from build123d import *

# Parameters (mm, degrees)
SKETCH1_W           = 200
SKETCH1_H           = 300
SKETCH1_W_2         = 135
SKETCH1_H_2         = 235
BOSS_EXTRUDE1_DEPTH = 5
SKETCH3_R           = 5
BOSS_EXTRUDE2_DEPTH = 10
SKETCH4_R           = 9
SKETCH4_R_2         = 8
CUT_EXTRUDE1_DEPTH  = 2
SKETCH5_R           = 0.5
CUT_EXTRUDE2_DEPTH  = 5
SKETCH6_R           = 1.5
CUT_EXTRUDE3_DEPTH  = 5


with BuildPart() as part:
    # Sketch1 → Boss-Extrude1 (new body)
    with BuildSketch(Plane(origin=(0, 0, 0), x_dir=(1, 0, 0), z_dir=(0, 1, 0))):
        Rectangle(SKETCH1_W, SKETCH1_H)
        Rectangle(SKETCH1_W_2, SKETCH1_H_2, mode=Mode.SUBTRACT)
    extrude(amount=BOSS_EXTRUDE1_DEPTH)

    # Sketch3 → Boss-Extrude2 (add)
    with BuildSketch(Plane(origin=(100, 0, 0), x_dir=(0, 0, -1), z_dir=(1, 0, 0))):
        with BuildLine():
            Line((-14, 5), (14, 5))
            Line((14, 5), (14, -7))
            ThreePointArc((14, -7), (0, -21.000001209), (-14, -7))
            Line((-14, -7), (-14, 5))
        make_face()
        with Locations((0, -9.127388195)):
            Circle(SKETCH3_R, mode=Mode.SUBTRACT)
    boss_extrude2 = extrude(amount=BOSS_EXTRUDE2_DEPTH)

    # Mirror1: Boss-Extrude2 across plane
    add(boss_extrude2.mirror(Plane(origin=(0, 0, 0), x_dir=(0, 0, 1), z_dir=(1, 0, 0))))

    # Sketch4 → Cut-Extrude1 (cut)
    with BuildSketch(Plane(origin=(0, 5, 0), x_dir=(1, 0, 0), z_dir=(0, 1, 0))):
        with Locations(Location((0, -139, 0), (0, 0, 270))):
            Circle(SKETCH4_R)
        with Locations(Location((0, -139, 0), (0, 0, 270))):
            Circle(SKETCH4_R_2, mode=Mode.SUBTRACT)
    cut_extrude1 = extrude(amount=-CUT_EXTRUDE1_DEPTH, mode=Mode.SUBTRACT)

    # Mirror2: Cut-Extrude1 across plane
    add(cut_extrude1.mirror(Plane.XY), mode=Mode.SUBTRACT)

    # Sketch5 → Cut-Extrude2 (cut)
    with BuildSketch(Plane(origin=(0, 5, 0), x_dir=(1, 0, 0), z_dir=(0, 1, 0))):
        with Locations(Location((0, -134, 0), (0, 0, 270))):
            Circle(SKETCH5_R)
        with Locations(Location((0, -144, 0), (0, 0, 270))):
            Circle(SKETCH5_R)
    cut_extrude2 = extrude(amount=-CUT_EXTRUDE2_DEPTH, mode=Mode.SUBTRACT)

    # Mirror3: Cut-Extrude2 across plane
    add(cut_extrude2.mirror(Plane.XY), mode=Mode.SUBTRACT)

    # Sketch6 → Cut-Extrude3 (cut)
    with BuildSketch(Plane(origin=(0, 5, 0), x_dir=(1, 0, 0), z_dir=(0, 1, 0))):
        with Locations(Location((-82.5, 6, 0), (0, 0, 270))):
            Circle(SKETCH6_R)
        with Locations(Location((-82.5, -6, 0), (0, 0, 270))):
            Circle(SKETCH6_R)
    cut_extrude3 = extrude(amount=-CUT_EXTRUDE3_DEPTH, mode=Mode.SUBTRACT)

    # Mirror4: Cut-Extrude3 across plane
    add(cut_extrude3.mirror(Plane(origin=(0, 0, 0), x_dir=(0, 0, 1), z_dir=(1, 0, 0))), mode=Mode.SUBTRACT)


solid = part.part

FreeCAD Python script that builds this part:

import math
import FreeCAD as App
import Part
import Sketcher

V = App.Vector


def add_polygon(sketch, points):
    """Adds a closed chain of lines whose ends are joined by coincident constraints."""
    first, n = sketch.GeometryCount, len(points)
    for a, b in zip(points, points[1:] + points[:1]):
        sketch.addGeometry(Part.LineSegment(App.Vector(*a, 0), App.Vector(*b, 0)), False)
    for i in range(n):
        sketch.addConstraint(Sketcher.Constraint("Coincident", first + i, 2, first + (i + 1) % n, 1))

doc = App.newDocument("Part")
params = doc.addObject("Spreadsheet::Sheet", "Params")
for row, (alias, value) in enumerate([
    ("sketch1_width", "200 mm"),
    ("sketch1_width2", "135 mm"),
    ("sketch1_height", "300 mm"),
    ("sketch1_height2", "235 mm"),
    ("pad1_length", "5 mm"),
    ("sketch2_diameter", "10 mm"),
    ("sketch2_radius", "14 mm"),
    ("sketch2_width", "12 mm"),
    ("pad2_length", "10 mm"),
    ("sketch3_diameter", "18 mm"),
    ("sketch3_diameter2", "16 mm"),
    ("pocket1_length", "2 mm"),
    ("sketch4_diameter", "1 mm"),
    ("pocket2_length", "5 mm"),
    ("sketch5_diameter", "3 mm"),
    ("pocket3_length", "5 mm"),
], start=1):
    params.set(f"A{row}", alias)
    params.set(f"B{row}", "=" + value)
    params.setAlias(f"B{row}", alias)

body = doc.addObject("PartDesign::Body", "Body")

sketch1 = body.newObject("Sketcher::SketchObject", "Sketch")
sketch1.AttachmentSupport = (doc.getObject("XZ_Plane"), [""])
sketch1.MapMode = "FlatFace"
add_polygon(sketch1, [(-100, -150), (-100, 150), (100, 150), (100, -150)])
add_polygon(sketch1, [(67.5, 117.5), (-67.5, 117.5), (-67.5, -117.5), (67.5, -117.5)])
sketch1.addConstraint([
    Sketcher.Constraint("Vertical", 0),
    Sketcher.Constraint("Horizontal", 1),
    Sketcher.Constraint("Vertical", 2),
    Sketcher.Constraint("Horizontal", 3),
    Sketcher.Constraint("Horizontal", 4),
    Sketcher.Constraint("Vertical", 5),
    Sketcher.Constraint("Horizontal", 6),
    Sketcher.Constraint("Vertical", 7),
    Sketcher.Constraint("Symmetric", 0, 2, 2, 2, -1, 1),
    Sketcher.Constraint("Symmetric", 4, 2, 6, 2, -1, 1),
    Sketcher.Constraint("DistanceX", 1, 1, 1, 2, 200.0),
    Sketcher.Constraint("DistanceX", 4, 2, 4, 1, 135.0),
    Sketcher.Constraint("DistanceY", 0, 1, 0, 2, 300.0),
    Sketcher.Constraint("DistanceY", 5, 2, 5, 1, 235.0),
])
sketch1.setExpression("Constraints[18]", "Params.sketch1_width")
sketch1.setExpression("Constraints[19]", "Params.sketch1_width2")
sketch1.setExpression("Constraints[20]", "Params.sketch1_height")
sketch1.setExpression("Constraints[21]", "Params.sketch1_height2")
pad1 = body.newObject("PartDesign::Pad", "Pad")
pad1.Profile = sketch1
pad1.setExpression("Length", "Params.pad1_length")
pad1.Reversed = True

sketch2 = body.newObject("Sketcher::SketchObject", "Sketch001")
sketch2.AttachmentSupport = (doc.getObject("YZ_Plane"), [""])
sketch2.MapMode = "FlatFace"
sketch2.AttachmentOffset = App.Placement(V(0, 0, 100), App.Rotation())
sketch2.addGeometry([
    Part.LineSegment(V(5, -14, 0), V(5, 14, 0)),
    Part.LineSegment(V(5, 14, 0), V(-7, 14, 0)),
    Part.ArcOfCircle(Part.Circle(V(-7.000001, 0, 0), V(0, 0, 1), 14), math.radians(89.999995), math.radians(270.000005)),
    Part.LineSegment(V(-7, -14, 0), V(5, -14, 0)),
    Part.Circle(V(-9.127388, 0, 0), V(0, 0, 1), 5),
], False)
sketch2.addConstraint([
    Sketcher.Constraint("Coincident", 0, 2, 1, 1),
    Sketcher.Constraint("Tangent", 1, 2, 2, 1),
    Sketcher.Constraint("Tangent", 2, 2, 3, 1),
    Sketcher.Constraint("Coincident", 3, 2, 0, 1),
    Sketcher.Constraint("Vertical", 0),
    Sketcher.Constraint("Horizontal", 1),
    Sketcher.Constraint("Horizontal", 3),
    Sketcher.Constraint("PointOnObject", 2, 3, -1),
    Sketcher.Constraint("PointOnObject", 4, 3, -1),
    Sketcher.Constraint("Diameter", 4, 10.0),
    Sketcher.Constraint("Radius", 2, 14.0),
    Sketcher.Constraint("DistanceX", 1, 2, 1, 1, 12.0),
    Sketcher.Constraint("DistanceX", 2, 3, -1, 1, 7.000001),
    Sketcher.Constraint("DistanceX", 4, 3, -1, 1, 9.127388),
])
sketch2.setExpression("Constraints[9]", "Params.sketch2_diameter")
sketch2.setExpression("Constraints[10]", "Params.sketch2_radius")
sketch2.setExpression("Constraints[11]", "Params.sketch2_width")
pad2 = body.newObject("PartDesign::Pad", "Pad001")
pad2.Profile = sketch2
pad2.setExpression("Length", "Params.pad2_length")
doc.recompute()

mirrored = body.newObject("PartDesign::Mirrored", "Mirrored")
mirrored.Originals = [pad2]
mirrored.MirrorPlane = (doc.getObject("YZ_Plane"), [""])
body.Tip = mirrored

sketch3 = body.newObject("Sketcher::SketchObject", "Sketch002")
sketch3.AttachmentSupport = (doc.getObject("XZ_Plane"), [""])
sketch3.MapMode = "FlatFace"
sketch3.AttachmentOffset = App.Placement(V(0, 0, -5), App.Rotation())
sketch3.addGeometry([
    Part.Circle(V(0, 139, 0), V(0, 0, 1), 9),
    Part.Circle(V(0, 139, 0), V(0, 0, 1), 8),
], False)
sketch3.addConstraint([
    Sketcher.Constraint("Coincident", 1, 3, 0, 3),
    Sketcher.Constraint("PointOnObject", 0, 3, -2),
    Sketcher.Constraint("Diameter", 0, 18.0),
    Sketcher.Constraint("Diameter", 1, 16.0),
    Sketcher.Constraint("DistanceY", -1, 1, 0, 3, 139.0),
])
sketch3.setExpression("Constraints[2]", "Params.sketch3_diameter")
sketch3.setExpression("Constraints[3]", "Params.sketch3_diameter2")
pocket1 = body.newObject("PartDesign::Pocket", "Pocket")
pocket1.Profile = sketch3
pocket1.setExpression("Length", "Params.pocket1_length")
pocket1.Reversed = True
doc.recompute()

mirrored2 = body.newObject("PartDesign::Mirrored", "Mirrored001")
mirrored2.Originals = [pocket1]
mirrored2.MirrorPlane = (doc.getObject("XY_Plane"), [""])
body.Tip = mirrored2

sketch4 = body.newObject("Sketcher::SketchObject", "Sketch003")
sketch4.AttachmentSupport = (doc.getObject("XZ_Plane"), [""])
sketch4.MapMode = "FlatFace"
sketch4.AttachmentOffset = App.Placement(V(0, 0, -5), App.Rotation())
sketch4.addGeometry([
    Part.Circle(V(0, 134, 0), V(0, 0, 1), 0.5),
    Part.Circle(V(0, 144, 0), V(0, 0, 1), 0.5),
], False)
sketch4.addConstraint([
    Sketcher.Constraint("Equal", 0, 1),
    Sketcher.Constraint("PointOnObject", 0, 3, -2),
    Sketcher.Constraint("PointOnObject", 1, 3, -2),
    Sketcher.Constraint("Diameter", 0, 1.0),
    Sketcher.Constraint("DistanceY", -1, 1, 0, 3, 134.0),
    Sketcher.Constraint("DistanceY", -1, 1, 1, 3, 144.0),
])
sketch4.setExpression("Constraints[3]", "Params.sketch4_diameter")
pocket2 = body.newObject("PartDesign::Pocket", "Pocket001")
pocket2.Profile = sketch4
pocket2.setExpression("Length", "Params.pocket2_length")
pocket2.Reversed = True
doc.recompute()

mirrored3 = body.newObject("PartDesign::Mirrored", "Mirrored002")
mirrored3.Originals = [pocket2]
mirrored3.MirrorPlane = (doc.getObject("XY_Plane"), [""])
body.Tip = mirrored3

sketch5 = body.newObject("Sketcher::SketchObject", "Sketch004")
sketch5.AttachmentSupport = (doc.getObject("XZ_Plane"), [""])
sketch5.MapMode = "FlatFace"
sketch5.AttachmentOffset = App.Placement(V(0, 0, -5), App.Rotation())
sketch5.addGeometry([
    Part.Circle(V(-82.5, -6, 0), V(0, 0, 1), 1.5),
    Part.Circle(V(-82.5, 6, 0), V(0, 0, 1), 1.5),
], False)
sketch5.addConstraint([
    Sketcher.Constraint("Equal", 0, 1),
    Sketcher.Constraint("Symmetric", 0, 3, 1, 3, -1),
    Sketcher.Constraint("Diameter", 0, 3.0),
    Sketcher.Constraint("DistanceY", 0, 3, -1, 1, 6.0),
    Sketcher.Constraint("DistanceX", 0, 3, -1, 1, 82.5),
])
sketch5.setExpression("Constraints[2]", "Params.sketch5_diameter")
pocket3 = body.newObject("PartDesign::Pocket", "Pocket002")
pocket3.Profile = sketch5
pocket3.setExpression("Length", "Params.pocket3_length")
pocket3.Reversed = True
doc.recompute()

mirrored4 = body.newObject("PartDesign::Mirrored", "Mirrored003")
mirrored4.Originals = [pocket3]
mirrored4.MirrorPlane = (doc.getObject("YZ_Plane"), [""])
body.Tip = mirrored4

doc.recompute()
